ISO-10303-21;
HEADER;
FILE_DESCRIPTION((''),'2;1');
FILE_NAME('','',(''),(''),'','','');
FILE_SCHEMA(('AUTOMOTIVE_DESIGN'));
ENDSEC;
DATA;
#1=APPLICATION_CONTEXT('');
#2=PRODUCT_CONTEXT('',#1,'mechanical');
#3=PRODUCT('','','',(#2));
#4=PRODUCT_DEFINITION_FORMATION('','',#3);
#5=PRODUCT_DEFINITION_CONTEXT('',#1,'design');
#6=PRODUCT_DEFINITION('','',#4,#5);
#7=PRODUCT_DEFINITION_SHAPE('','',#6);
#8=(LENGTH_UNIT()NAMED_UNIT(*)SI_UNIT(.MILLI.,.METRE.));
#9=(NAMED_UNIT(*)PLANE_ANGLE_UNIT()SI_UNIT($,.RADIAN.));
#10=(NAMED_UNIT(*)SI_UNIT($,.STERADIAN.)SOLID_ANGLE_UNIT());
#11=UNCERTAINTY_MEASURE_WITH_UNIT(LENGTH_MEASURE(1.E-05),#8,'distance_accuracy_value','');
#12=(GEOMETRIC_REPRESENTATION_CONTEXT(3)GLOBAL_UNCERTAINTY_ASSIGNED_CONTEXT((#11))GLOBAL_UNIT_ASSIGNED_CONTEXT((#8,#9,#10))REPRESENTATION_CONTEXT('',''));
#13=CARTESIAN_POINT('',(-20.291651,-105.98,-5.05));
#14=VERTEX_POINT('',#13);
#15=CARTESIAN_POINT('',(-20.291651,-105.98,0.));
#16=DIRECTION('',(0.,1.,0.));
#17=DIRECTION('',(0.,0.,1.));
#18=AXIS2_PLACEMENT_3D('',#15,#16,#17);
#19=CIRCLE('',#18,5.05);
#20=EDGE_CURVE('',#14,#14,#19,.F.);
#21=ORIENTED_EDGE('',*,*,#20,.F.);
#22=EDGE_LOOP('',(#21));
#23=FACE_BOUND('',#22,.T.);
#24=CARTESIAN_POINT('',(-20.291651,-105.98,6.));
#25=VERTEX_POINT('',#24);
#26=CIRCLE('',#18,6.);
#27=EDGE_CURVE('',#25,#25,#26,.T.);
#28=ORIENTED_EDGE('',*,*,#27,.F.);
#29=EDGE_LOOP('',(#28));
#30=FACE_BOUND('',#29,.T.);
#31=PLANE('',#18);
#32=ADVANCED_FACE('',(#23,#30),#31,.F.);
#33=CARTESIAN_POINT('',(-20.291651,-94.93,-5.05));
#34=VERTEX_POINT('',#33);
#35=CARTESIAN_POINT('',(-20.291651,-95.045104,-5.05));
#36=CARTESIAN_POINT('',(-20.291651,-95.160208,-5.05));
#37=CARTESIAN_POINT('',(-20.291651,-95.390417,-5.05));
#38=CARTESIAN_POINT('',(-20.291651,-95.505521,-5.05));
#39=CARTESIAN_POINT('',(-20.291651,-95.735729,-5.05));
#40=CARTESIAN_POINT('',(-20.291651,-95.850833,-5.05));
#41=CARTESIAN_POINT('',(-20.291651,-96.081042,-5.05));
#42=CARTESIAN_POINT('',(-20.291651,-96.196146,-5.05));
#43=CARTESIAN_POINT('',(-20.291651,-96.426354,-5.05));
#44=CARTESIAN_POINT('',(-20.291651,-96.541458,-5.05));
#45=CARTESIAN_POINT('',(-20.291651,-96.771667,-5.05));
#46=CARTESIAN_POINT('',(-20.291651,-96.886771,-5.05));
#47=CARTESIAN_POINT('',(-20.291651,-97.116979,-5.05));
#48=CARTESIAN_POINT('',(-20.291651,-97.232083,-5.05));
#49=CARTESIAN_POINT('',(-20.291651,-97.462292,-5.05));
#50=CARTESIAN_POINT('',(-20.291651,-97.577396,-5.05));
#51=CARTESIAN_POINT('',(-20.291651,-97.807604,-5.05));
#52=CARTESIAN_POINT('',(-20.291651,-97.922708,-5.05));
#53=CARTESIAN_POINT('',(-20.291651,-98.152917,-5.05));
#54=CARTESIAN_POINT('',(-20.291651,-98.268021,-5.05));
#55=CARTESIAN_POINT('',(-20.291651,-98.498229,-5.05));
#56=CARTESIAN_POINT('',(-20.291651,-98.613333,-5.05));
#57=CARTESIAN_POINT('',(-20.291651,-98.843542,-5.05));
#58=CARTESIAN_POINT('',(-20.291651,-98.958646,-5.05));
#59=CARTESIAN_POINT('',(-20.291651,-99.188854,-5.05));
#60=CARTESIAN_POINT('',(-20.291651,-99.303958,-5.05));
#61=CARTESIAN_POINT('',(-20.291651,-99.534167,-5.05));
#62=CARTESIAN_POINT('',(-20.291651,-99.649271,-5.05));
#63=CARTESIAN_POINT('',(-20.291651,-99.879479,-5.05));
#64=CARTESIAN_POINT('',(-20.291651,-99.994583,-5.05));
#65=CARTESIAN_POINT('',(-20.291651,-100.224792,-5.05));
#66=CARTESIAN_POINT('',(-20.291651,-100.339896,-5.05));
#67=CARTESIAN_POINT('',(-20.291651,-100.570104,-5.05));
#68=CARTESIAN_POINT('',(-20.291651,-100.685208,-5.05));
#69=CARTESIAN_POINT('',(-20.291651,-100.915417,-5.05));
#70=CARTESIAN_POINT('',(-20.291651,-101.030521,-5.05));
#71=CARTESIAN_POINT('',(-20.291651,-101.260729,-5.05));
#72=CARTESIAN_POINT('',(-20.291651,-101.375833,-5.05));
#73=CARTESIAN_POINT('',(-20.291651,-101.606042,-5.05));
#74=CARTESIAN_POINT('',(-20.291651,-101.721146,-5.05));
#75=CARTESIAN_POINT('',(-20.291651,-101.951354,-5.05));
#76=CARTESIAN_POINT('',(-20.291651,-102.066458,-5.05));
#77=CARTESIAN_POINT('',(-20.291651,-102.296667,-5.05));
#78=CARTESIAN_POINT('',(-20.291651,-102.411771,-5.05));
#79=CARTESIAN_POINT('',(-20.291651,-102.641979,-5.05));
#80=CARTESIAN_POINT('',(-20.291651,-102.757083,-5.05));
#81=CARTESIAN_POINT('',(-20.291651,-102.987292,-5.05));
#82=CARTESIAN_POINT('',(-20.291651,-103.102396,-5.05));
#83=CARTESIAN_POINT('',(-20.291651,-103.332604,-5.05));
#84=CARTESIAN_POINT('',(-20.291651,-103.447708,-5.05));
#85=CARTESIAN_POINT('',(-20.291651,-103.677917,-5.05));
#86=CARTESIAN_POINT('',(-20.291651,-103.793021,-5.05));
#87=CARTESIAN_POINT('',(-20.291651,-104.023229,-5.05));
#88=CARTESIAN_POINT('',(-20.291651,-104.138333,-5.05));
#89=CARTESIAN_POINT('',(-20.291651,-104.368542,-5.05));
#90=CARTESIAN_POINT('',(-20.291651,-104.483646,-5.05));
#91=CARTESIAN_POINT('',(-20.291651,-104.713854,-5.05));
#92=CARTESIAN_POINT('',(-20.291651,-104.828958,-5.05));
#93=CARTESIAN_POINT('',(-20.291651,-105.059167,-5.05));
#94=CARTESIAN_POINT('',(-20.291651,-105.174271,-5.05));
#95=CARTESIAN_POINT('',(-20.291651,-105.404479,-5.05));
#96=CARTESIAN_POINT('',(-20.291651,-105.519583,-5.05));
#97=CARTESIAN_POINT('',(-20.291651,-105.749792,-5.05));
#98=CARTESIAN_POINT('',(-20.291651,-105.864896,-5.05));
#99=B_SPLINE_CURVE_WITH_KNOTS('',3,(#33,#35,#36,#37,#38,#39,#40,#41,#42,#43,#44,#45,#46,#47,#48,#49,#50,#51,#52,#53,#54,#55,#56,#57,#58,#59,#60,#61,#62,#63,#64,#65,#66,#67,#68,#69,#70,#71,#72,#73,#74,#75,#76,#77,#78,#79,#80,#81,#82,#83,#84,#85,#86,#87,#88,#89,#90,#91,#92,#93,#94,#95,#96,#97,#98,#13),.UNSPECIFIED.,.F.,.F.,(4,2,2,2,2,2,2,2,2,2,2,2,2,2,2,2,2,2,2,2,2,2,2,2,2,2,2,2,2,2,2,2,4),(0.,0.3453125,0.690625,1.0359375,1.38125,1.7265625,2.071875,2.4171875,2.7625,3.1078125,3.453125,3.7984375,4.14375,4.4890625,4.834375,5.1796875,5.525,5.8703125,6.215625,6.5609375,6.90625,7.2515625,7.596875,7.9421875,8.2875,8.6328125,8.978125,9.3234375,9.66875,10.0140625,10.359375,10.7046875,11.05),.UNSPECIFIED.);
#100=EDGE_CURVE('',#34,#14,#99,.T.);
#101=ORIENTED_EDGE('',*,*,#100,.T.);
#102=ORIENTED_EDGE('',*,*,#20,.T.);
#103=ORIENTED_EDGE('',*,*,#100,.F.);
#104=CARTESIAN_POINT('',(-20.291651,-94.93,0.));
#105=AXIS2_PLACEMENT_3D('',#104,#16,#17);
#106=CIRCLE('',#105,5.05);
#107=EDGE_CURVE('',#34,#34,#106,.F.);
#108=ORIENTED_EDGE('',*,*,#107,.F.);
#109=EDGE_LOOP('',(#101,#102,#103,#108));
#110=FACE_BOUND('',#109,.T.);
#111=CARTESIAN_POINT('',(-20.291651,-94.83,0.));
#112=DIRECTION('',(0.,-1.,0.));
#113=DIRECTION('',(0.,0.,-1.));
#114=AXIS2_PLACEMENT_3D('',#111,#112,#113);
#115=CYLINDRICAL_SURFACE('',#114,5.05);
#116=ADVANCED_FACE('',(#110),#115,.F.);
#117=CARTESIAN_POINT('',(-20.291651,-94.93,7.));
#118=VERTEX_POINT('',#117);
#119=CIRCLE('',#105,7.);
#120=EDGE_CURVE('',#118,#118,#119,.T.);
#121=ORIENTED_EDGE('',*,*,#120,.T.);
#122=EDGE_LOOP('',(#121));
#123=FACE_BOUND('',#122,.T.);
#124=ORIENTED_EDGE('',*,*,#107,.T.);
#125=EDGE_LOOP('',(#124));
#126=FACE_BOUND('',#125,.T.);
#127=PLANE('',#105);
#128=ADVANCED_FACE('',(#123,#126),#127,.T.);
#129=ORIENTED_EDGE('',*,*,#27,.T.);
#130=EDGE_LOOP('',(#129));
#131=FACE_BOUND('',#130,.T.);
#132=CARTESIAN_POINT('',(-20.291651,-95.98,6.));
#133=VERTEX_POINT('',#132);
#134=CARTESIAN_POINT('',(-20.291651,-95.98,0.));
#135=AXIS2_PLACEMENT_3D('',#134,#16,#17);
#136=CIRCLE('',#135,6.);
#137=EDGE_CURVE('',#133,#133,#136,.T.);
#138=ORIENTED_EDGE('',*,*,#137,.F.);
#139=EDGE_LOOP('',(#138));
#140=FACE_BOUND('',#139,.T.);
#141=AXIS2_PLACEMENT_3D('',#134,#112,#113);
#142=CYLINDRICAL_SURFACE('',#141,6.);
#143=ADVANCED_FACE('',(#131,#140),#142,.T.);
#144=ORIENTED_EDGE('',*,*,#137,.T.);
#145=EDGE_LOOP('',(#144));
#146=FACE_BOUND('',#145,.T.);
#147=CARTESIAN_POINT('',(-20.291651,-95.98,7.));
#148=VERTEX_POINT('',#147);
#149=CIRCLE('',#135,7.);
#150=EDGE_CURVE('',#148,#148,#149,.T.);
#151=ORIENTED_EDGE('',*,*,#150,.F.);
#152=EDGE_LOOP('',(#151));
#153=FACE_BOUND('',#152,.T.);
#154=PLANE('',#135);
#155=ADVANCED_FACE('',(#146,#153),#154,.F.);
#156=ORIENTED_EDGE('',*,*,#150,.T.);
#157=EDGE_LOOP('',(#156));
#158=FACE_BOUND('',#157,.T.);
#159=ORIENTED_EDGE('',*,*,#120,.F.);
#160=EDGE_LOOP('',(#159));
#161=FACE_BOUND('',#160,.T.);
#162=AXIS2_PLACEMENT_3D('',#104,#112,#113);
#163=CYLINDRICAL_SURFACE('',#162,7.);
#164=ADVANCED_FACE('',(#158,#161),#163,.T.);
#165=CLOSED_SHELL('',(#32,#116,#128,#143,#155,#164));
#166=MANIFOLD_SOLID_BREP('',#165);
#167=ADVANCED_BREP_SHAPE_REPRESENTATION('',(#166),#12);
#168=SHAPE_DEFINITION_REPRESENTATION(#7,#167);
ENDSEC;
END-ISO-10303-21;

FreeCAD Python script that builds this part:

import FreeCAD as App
import Part
import Sketcher
from FreeCAD import Vector

doc = App.newDocument("Part")
body = doc.addObject("PartDesign::Body", "Body")

sketch1 = body.newObject("Sketcher::SketchObject", "Sketch")
sketch1.AttachmentSupport = (doc.getObject("XZ_Plane"), [""])
sketch1.MapMode = "FlatFace"
sketch1.AttachmentOffset = App.Placement(Vector(0, 0, 105.98), App.Rotation())
sketch1.addGeometry(Part.Circle(Vector(-20, 0, 0), Vector(0, 0, 1), 6), False)
sketch1.addConstraint([
    Sketcher.Constraint("PointOnObject", 0, 3, -1),
    Sketcher.Constraint("Diameter", 0, 12.0),
    Sketcher.Constraint("DistanceX", 0, 3, -1, 1, 20.291651),
])
pad1 = body.newObject("PartDesign::Pad", "Pad")
pad1.Profile = sketch1
pad1.Length = 10
pad1.Reversed = True

sketch2 = body.newObject("Sketcher::SketchObject", "Sketch001")
sketch2.AttachmentSupport = (doc.getObject("XZ_Plane"), [""])
sketch2.MapMode = "FlatFace"
sketch2.AttachmentOffset = App.Placement(Vector(0, 0, 95.98), App.Rotation())
sketch2.addGeometry(Part.Circle(Vector(-20, 0, 0), Vector(0, 0, 1), 7), False)
sketch2.addConstraint([
    Sketcher.Constraint("PointOnObject", 0, 3, -1),
    Sketcher.Constraint("Diameter", 0, 14.0),
    Sketcher.Constraint("DistanceX", 0, 3, -1, 1, 20.291651),
])
pad2 = body.newObject("PartDesign::Pad", "Pad001")
pad2.Profile = sketch2
pad2.Length = 1.05
pad2.Reversed = True

sketch3 = body.newObject("Sketcher::SketchObject", "Sketch002")
sketch3.AttachmentSupport = (doc.getObject("XZ_Plane"), [""])
sketch3.MapMode = "FlatFace"
sketch3.AttachmentOffset = App.Placement(Vector(0, 0, 106.08), App.Rotation())
sketch3.addGeometry(Part.Circle(Vector(-20, 0, 0), Vector(0, 0, 1), 5), False)
sketch3.addConstraint([
    Sketcher.Constraint("PointOnObject", 0, 3, -1),
    Sketcher.Constraint("Diameter", 0, 10.1),
    Sketcher.Constraint("DistanceX", 0, 3, -1, 1, 20.291651),
])
pocket1 = body.newObject("PartDesign::Pocket", "Pocket")
pocket1.Profile = sketch3
pocket1.Length = 11.25

doc.recompute()
